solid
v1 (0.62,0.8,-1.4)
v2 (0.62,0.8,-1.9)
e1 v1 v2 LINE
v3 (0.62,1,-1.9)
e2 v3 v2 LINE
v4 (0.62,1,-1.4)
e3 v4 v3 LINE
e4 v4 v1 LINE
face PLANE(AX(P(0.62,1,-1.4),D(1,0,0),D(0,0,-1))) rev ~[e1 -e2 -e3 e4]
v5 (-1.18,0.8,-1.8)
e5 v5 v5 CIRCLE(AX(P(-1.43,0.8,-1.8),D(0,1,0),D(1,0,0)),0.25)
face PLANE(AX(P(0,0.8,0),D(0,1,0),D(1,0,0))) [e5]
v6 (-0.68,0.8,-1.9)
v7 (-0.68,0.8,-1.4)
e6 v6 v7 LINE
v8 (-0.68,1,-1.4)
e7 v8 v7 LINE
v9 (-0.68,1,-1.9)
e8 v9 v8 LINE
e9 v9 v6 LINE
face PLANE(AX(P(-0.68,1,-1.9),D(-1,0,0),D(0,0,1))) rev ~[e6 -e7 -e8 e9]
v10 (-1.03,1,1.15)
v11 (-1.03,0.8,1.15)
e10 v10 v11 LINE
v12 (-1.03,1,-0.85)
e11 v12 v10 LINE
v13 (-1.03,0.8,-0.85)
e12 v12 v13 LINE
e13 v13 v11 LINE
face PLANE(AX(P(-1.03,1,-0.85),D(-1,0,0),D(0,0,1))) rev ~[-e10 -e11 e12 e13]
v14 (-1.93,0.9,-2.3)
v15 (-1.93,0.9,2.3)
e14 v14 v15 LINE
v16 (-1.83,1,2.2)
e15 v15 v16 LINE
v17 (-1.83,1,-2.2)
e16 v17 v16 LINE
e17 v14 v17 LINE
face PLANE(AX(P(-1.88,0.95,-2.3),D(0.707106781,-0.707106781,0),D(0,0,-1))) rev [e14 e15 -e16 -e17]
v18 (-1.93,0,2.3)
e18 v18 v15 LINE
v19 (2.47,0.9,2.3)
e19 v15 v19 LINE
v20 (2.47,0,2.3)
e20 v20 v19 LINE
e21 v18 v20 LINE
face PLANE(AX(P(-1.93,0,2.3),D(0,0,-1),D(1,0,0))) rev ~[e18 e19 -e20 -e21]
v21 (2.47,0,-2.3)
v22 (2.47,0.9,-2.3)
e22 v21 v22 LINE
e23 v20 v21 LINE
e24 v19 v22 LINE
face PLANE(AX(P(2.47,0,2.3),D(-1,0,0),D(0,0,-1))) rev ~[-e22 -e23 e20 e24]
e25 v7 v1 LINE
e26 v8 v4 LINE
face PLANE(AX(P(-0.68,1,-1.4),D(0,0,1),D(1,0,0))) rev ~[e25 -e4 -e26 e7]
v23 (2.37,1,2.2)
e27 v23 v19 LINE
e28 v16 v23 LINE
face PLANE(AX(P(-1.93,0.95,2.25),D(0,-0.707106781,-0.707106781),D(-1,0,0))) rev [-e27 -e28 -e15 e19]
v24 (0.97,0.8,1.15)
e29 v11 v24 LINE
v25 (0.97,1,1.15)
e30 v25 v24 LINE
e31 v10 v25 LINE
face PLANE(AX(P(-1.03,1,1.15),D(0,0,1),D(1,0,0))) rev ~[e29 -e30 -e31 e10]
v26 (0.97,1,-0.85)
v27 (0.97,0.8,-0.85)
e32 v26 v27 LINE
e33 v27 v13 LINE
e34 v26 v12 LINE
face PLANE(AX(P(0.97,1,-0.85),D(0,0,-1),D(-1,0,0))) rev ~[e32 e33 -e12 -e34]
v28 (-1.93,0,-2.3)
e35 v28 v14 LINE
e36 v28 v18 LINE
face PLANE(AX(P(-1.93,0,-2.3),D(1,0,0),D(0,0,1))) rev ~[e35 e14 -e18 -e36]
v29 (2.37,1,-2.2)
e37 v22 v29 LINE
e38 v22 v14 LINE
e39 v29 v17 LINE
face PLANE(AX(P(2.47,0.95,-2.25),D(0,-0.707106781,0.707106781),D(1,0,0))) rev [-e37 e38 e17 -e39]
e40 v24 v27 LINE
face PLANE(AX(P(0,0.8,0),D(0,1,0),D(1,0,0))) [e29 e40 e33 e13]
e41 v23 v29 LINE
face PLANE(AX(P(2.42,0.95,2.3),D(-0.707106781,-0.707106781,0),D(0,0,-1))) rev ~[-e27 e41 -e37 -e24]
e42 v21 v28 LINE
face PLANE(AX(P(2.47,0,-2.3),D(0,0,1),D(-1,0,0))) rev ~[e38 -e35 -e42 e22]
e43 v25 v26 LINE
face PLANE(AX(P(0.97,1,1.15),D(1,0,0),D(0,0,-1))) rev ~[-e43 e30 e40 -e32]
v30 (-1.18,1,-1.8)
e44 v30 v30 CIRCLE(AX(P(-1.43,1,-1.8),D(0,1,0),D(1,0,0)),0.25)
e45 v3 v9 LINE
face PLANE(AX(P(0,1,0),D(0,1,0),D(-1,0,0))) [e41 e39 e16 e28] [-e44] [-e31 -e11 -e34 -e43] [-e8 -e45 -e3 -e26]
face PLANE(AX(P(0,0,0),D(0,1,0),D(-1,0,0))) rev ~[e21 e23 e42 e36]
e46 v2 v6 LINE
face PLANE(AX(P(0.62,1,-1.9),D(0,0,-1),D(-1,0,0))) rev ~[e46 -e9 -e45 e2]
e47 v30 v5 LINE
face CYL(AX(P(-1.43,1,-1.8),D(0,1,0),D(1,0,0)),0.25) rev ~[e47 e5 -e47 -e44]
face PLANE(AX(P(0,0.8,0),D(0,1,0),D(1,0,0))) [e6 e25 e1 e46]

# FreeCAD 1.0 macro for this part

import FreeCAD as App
import Part
import Sketcher
from FreeCAD import Vector
Q = App.Units.Quantity


def edges_at(feature, points):
    """Names of the edges that pass closest to the given points."""
    edges = feature.Shape.Edges
    near = lambda p: min(range(len(edges)), key=lambda i: edges[i].distToShape(Part.Vertex(*p))[0])
    return sorted({f"Edge{near(p) + 1}" for p in points})

doc = App.newDocument("Part")
body = doc.addObject("PartDesign::Body", "Body")

# Sketch on XZ plane
sketch1 = doc.addObject("Sketcher::SketchObject", "Sketch")
body.addObject(sketch1)
sketch1.AttachmentSupport = (doc.XZ_Plane, [""])
sketch1.MapMode = "FlatFace"
sketch1.addGeometry(Part.LineSegment(Vector(-1.93, -2.3, 0), Vector(-1.93, 2.3, 0)), False)
sketch1.addGeometry(Part.LineSegment(Vector(-1.93, 2.3, 0), Vector(2.47, 2.3, 0)), False)
sketch1.addGeometry(Part.LineSegment(Vector(2.47, 2.3, 0), Vector(2.47, -2.3, 0)), False)
sketch1.addGeometry(Part.LineSegment(Vector(2.47, -2.3, 0), Vector(-1.93, -2.3, 0)), False)
sketch1.addConstraint(Sketcher.Constraint("Coincident", 0, 2, 1, 1))
sketch1.addConstraint(Sketcher.Constraint("Coincident", 1, 2, 2, 1))
sketch1.addConstraint(Sketcher.Constraint("Coincident", 2, 2, 3, 1))
sketch1.addConstraint(Sketcher.Constraint("Coincident", 3, 2, 0, 1))
sketch1.addConstraint(Sketcher.Constraint("Vertical", 0))
sketch1.addConstraint(Sketcher.Constraint("Horizontal", 1))
sketch1.addConstraint(Sketcher.Constraint("Vertical", 2))
sketch1.addConstraint(Sketcher.Constraint("Horizontal", 3))
sketch1.addConstraint(Sketcher.Constraint("DistanceX", 1, 1, 1, 2, Q("4.4 mm")))
sketch1.addConstraint(Sketcher.Constraint("DistanceY", 0, 1, 0, 2, Q("4.6 mm")))
sketch1.addConstraint(Sketcher.Constraint("DistanceY", -1, 1, 0, 2, Q("2.3 mm")))
sketch1.addConstraint(Sketcher.Constraint("DistanceX", 0, 2, -1, 1, Q("1.93 mm")))
pad1 = doc.addObject("PartDesign::Pad", "Pad")
body.addObject(pad1)
pad1.Profile = sketch1
pad1.Length = 1
pad1.Reversed = True

# Sketch on XZ plane
sketch2 = doc.addObject("Sketcher::SketchObject", "Sketch001")
body.addObject(sketch2)
sketch2.AttachmentSupport = (doc.XZ_Plane, [""])
sketch2.MapMode = "FlatFace"
sketch2.AttachmentOffset = App.Placement(Vector(0, 0, -1), App.Rotation())
sketch2.addGeometry(Part.LineSegment(Vector(-1.03, -0.85, 0), Vector(-1.03, 1.15, 0)), False)
sketch2.addGeometry(Part.LineSegment(Vector(-1.03, 1.15, 0), Vector(0.97, 1.15, 0)), False)
sketch2.addGeometry(Part.LineSegment(Vector(0.97, 1.15, 0), Vector(0.97, -0.85, 0)), False)
sketch2.addGeometry(Part.LineSegment(Vector(0.97, -0.85, 0), Vector(-1.03, -0.85, 0)), False)
sketch2.addGeometry(Part.LineSegment(Vector(-0.68, -1.9, 0), Vector(-0.68, -1.4, 0)), False)
sketch2.addGeometry(Part.LineSegment(Vector(-0.68, -1.4, 0), Vector(0.62, -1.4, 0)), False)
sketch2.addGeometry(Part.LineSegment(Vector(0.62, -1.4, 0), Vector(0.62, -1.9, 0)), False)
sketch2.addGeometry(Part.LineSegment(Vector(0.62, -1.9, 0), Vector(-0.68, -1.9, 0)), False)
sketch2.addGeometry(Part.Circle(Vector(-1.43, -1.8, 0), Vector(0, 0, 1), 0.25), False)
sketch2.addConstraint(Sketcher.Constraint("Coincident", 0, 2, 1, 1))
sketch2.addConstraint(Sketcher.Constraint("Coincident", 1, 2, 2, 1))
sketch2.addConstraint(Sketcher.Constraint("Coincident", 2, 2, 3, 1))
sketch2.addConstraint(Sketcher.Constraint("Coincident", 3, 2, 0, 1))
sketch2.addConstraint(Sketcher.Constraint("Coincident", 4, 2, 5, 1))
sketch2.addConstraint(Sketcher.Constraint("Coincident", 5, 2, 6, 1))
sketch2.addConstraint(Sketcher.Constraint("Coincident", 6, 2, 7, 1))
sketch2.addConstraint(Sketcher.Constraint("Coincident", 7, 2, 4, 1))
sketch2.addConstraint(Sketcher.Constraint("Vertical", 0))
sketch2.addConstraint(Sketcher.Constraint("Horizontal", 1))
sketch2.addConstraint(Sketcher.Constraint("Vertical", 2))
sketch2.addConstraint(Sketcher.Constraint("Horizontal", 3))
sketch2.addConstraint(Sketcher.Constraint("Vertical", 4))
sketch2.addConstraint(Sketcher.Constraint("Horizontal", 5))
sketch2.addConstraint(Sketcher.Constraint("Vertical", 6))
sketch2.addConstraint(Sketcher.Constraint("Horizontal", 7))
sketch2.addConstraint(Sketcher.Constraint("Equal", 3, 0))
sketch2.addConstraint(Sketcher.Constraint("Diameter", 8, Q("0.5 mm")))
sketch2.addConstraint(Sketcher.Constraint("DistanceX", 1, 1, 1, 2, Q("2 mm")))
sketch2.addConstraint(Sketcher.Constraint("DistanceX", 5, 1, 5, 2, Q("1.3 mm")))
sketch2.addConstraint(Sketcher.Constraint("DistanceY", 4, 1, 4, 2, Q("0.5 mm")))
sketch2.addConstraint(Sketcher.Constraint("DistanceX", 8, 3, 0, 2, Q("0.4 mm")))
sketch2.addConstraint(Sketcher.Constraint("DistanceY", 8, 3, 4, 2, Q("0.4 mm")))
sketch2.addConstraint(Sketcher.Constraint("DistanceY", -1, 1, 0, 2, Q("1.15 mm")))
sketch2.addConstraint(Sketcher.Constraint("DistanceY", 8, 3, -1, 1, Q("1.8 mm")))
sketch2.addConstraint(Sketcher.Constraint("DistanceX", 8, 3, -1, 1, Q("1.43 mm")))
sketch2.addConstraint(Sketcher.Constraint("DistanceX", 4, 2, -1, 1, Q("0.68 mm")))
pocket1 = doc.addObject("PartDesign::Pocket", "Pocket")
body.addObject(pocket1)
pocket1.Profile = sketch2
pocket1.Length = 0.2
pocket1.Reversed = True
doc.recompute()

chamfer = doc.addObject("PartDesign::Chamfer", "Chamfer")
body.addObject(chamfer)
chamfer.Base = (pocket1, edges_at(pocket1, [
    (-1.93, 1, 0),
    (0.27, 1, -2.3),
    (2.47, 1, 0),
    (0.27, 1, 2.3),
]))
chamfer.Size = 0.1

doc.recompute()
